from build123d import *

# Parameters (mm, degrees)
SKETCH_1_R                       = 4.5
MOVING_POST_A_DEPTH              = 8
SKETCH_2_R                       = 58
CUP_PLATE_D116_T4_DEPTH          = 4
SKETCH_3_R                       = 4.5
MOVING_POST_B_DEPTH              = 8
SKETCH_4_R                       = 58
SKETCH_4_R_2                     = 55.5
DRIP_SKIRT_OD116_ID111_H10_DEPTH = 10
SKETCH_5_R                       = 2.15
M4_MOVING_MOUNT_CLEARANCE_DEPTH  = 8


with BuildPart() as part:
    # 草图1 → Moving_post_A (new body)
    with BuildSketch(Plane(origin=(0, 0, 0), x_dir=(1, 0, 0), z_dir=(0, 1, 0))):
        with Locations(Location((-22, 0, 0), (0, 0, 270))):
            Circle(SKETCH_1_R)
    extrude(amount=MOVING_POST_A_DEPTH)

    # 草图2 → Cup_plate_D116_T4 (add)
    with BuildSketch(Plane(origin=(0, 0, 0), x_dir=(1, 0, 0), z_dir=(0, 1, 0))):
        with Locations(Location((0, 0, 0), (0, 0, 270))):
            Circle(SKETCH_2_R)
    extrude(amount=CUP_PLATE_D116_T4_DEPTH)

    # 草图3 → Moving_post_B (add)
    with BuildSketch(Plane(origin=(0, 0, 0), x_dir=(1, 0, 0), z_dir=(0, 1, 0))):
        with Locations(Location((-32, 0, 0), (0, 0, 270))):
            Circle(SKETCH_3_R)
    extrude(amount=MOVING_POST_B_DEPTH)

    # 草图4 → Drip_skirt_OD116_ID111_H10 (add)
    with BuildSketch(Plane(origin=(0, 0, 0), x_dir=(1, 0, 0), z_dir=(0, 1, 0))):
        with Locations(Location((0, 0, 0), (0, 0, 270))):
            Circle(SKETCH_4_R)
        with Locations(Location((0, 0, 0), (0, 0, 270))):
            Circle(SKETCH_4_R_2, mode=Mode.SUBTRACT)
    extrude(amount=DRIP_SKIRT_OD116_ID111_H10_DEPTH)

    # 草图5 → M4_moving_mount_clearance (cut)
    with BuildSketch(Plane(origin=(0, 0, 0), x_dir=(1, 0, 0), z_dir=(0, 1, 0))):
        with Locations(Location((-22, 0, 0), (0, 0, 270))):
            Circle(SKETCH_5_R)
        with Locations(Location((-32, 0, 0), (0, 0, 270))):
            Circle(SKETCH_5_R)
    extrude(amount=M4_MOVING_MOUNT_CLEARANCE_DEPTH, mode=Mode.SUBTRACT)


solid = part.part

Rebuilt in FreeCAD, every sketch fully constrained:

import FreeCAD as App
import Part
import Sketcher
Q = App.Units.Quantity

doc = App.newDocument("Part")
params = doc.addObject("Spreadsheet::Sheet", "Params")
for row, (alias, value) in enumerate([
    ("sketch1_diameter", "9 mm"),
    ("pad1_length", "8 mm"),
    ("sketch2_diameter", "116 mm"),
    ("pad2_length", "4 mm"),
    ("sketch3_diameter", "9 mm"),
    ("pad3_length", "8 mm"),
    ("sketch4_diameter", "116 mm"),
    ("sketch4_diameter2", "111 mm"),
    ("pad4_length", "10 mm"),
    ("sketch5_diameter", "4.3 mm"),
    ("pocket1_length", "8 mm"),
], start=1):
    params.set(f"A{row}", alias)
    params.set(f"B{row}", "=" + value)
    params.setAlias(f"B{row}", alias)

body = doc.addObject("PartDesign::Body", "Body")

# Sketch on XZ plane
sketch1 = body.newObject("Sketcher::SketchObject", "Sketch")
sketch1.AttachmentSupport = (doc.getObject("XZ_Plane"), [""])
sketch1.MapMode = "FlatFace"
sketch1.addGeometry(Part.Circle(App.Vector(-22, 0, 0), App.Vector(0, 0, 1), 4.5), False)
sketch1.addConstraint(Sketcher.Constraint("PointOnObject", 0, 3, -1))
sketch1.addConstraint(Sketcher.Constraint("Diameter", 0, Q("9 mm")))
sketch1.addConstraint(Sketcher.Constraint("DistanceX", 0, 3, -1, 1, Q("22 mm")))
sketch1.setExpression("Constraints[1]", "Params.sketch1_diameter")
pad1 = body.newObject("PartDesign::Pad", "Pad")
pad1.Profile = sketch1
pad1.setExpression("Length", "Params.pad1_length")
pad1.Reversed = True

# Sketch on XZ plane
sketch2 = body.newObject("Sketcher::SketchObject", "Sketch001")
sketch2.AttachmentSupport = (doc.getObject("XZ_Plane"), [""])
sketch2.MapMode = "FlatFace"
sketch2.addGeometry(Part.Circle(App.Vector(0, 0, 0), App.Vector(0, 0, 1), 58), False)
sketch2.addConstraint(Sketcher.Constraint("Coincident", 0, 3, -1, 1))
sketch2.addConstraint(Sketcher.Constraint("Diameter", 0, Q("116 mm")))
sketch2.setExpression("Constraints[1]", "Params.sketch2_diameter")
pad2 = body.newObject("PartDesign::Pad", "Pad001")
pad2.Profile = sketch2
pad2.setExpression("Length", "Params.pad2_length")
pad2.Reversed = True

# Sketch on XZ plane
sketch3 = body.newObject("Sketcher::SketchObject", "Sketch002")
sketch3.AttachmentSupport = (doc.getObject("XZ_Plane"), [""])
sketch3.MapMode = "FlatFace"
sketch3.addGeometry(Part.Circle(App.Vector(-32, 0, 0), App.Vector(0, 0, 1), 4.5), False)
sketch3.addConstraint(Sketcher.Constraint("PointOnObject", 0, 3, -1))
sketch3.addConstraint(Sketcher.Constraint("Diameter", 0, Q("9 mm")))
sketch3.addConstraint(Sketcher.Constraint("DistanceX", 0, 3, -1, 1, Q("32 mm")))
sketch3.setExpression("Constraints[1]", "Params.sketch3_diameter")
pad3 = body.newObject("PartDesign::Pad", "Pad002")
pad3.Profile = sketch3
pad3.setExpression("Length", "Params.pad3_length")
pad3.Reversed = True

# Sketch on XZ plane
sketch4 = body.newObject("Sketcher::SketchObject", "Sketch003")
sketch4.AttachmentSupport = (doc.getObject("XZ_Plane"), [""])
sketch4.MapMode = "FlatFace"
sketch4.addGeometry(Part.Circle(App.Vector(0, 0, 0), App.Vector(0, 0, 1), 58), False)
sketch4.addGeometry(Part.Circle(App.Vector(0, 0, 0), App.Vector(0, 0, 1), 56), False)
sketch4.addConstraint(Sketcher.Constraint("Coincident", 0, 3, -1, 1))
sketch4.addConstraint(Sketcher.Constraint("Coincident", 1, 3, -1, 1))
sketch4.addConstraint(Sketcher.Constraint("Diameter", 0, Q("116 mm")))
sketch4.addConstraint(Sketcher.Constraint("Diameter", 1, Q("111 mm")))
sketch4.setExpression("Constraints[2]", "Params.sketch4_diameter")
sketch4.setExpression("Constraints[3]", "Params.sketch4_diameter2")
pad4 = body.newObject("PartDesign::Pad", "Pad003")
pad4.Profile = sketch4
pad4.setExpression("Length", "Params.pad4_length")
pad4.Reversed = True

# Sketch on XZ plane
sketch5 = body.newObject("Sketcher::SketchObject", "Sketch004")
sketch5.AttachmentSupport = (doc.getObject("XZ_Plane"), [""])
sketch5.MapMode = "FlatFace"
sketch5.addGeometry(Part.Circle(App.Vector(-22, 0, 0), App.Vector(0, 0, 1), 2.1), False)
sketch5.addGeometry(Part.Circle(App.Vector(-32, 0, 0), App.Vector(0, 0, 1), 2.1), False)
sketch5.addConstraint(Sketcher.Constraint("Equal", 0, 1))
sketch5.addConstraint(Sketcher.Constraint("PointOnObject", 0, 3, -1))
sketch5.addConstraint(Sketcher.Constraint("PointOnObject", 1, 3, -1))
sketch5.addConstraint(Sketcher.Constraint("Diameter", 0, Q("4.3 mm")))
sketch5.addConstraint(Sketcher.Constraint("DistanceX", 0, 3, -1, 1, Q("22 mm")))
sketch5.addConstraint(Sketcher.Constraint("DistanceX", 1, 3, -1, 1, Q("32 mm")))
sketch5.setExpression("Constraints[3]", "Params.sketch5_diameter")
pocket1 = body.newObject("PartDesign::Pocket", "Pocket")
pocket1.Profile = sketch5
pocket1.setExpression("Length", "Params.pocket1_length")

doc.recompute()
